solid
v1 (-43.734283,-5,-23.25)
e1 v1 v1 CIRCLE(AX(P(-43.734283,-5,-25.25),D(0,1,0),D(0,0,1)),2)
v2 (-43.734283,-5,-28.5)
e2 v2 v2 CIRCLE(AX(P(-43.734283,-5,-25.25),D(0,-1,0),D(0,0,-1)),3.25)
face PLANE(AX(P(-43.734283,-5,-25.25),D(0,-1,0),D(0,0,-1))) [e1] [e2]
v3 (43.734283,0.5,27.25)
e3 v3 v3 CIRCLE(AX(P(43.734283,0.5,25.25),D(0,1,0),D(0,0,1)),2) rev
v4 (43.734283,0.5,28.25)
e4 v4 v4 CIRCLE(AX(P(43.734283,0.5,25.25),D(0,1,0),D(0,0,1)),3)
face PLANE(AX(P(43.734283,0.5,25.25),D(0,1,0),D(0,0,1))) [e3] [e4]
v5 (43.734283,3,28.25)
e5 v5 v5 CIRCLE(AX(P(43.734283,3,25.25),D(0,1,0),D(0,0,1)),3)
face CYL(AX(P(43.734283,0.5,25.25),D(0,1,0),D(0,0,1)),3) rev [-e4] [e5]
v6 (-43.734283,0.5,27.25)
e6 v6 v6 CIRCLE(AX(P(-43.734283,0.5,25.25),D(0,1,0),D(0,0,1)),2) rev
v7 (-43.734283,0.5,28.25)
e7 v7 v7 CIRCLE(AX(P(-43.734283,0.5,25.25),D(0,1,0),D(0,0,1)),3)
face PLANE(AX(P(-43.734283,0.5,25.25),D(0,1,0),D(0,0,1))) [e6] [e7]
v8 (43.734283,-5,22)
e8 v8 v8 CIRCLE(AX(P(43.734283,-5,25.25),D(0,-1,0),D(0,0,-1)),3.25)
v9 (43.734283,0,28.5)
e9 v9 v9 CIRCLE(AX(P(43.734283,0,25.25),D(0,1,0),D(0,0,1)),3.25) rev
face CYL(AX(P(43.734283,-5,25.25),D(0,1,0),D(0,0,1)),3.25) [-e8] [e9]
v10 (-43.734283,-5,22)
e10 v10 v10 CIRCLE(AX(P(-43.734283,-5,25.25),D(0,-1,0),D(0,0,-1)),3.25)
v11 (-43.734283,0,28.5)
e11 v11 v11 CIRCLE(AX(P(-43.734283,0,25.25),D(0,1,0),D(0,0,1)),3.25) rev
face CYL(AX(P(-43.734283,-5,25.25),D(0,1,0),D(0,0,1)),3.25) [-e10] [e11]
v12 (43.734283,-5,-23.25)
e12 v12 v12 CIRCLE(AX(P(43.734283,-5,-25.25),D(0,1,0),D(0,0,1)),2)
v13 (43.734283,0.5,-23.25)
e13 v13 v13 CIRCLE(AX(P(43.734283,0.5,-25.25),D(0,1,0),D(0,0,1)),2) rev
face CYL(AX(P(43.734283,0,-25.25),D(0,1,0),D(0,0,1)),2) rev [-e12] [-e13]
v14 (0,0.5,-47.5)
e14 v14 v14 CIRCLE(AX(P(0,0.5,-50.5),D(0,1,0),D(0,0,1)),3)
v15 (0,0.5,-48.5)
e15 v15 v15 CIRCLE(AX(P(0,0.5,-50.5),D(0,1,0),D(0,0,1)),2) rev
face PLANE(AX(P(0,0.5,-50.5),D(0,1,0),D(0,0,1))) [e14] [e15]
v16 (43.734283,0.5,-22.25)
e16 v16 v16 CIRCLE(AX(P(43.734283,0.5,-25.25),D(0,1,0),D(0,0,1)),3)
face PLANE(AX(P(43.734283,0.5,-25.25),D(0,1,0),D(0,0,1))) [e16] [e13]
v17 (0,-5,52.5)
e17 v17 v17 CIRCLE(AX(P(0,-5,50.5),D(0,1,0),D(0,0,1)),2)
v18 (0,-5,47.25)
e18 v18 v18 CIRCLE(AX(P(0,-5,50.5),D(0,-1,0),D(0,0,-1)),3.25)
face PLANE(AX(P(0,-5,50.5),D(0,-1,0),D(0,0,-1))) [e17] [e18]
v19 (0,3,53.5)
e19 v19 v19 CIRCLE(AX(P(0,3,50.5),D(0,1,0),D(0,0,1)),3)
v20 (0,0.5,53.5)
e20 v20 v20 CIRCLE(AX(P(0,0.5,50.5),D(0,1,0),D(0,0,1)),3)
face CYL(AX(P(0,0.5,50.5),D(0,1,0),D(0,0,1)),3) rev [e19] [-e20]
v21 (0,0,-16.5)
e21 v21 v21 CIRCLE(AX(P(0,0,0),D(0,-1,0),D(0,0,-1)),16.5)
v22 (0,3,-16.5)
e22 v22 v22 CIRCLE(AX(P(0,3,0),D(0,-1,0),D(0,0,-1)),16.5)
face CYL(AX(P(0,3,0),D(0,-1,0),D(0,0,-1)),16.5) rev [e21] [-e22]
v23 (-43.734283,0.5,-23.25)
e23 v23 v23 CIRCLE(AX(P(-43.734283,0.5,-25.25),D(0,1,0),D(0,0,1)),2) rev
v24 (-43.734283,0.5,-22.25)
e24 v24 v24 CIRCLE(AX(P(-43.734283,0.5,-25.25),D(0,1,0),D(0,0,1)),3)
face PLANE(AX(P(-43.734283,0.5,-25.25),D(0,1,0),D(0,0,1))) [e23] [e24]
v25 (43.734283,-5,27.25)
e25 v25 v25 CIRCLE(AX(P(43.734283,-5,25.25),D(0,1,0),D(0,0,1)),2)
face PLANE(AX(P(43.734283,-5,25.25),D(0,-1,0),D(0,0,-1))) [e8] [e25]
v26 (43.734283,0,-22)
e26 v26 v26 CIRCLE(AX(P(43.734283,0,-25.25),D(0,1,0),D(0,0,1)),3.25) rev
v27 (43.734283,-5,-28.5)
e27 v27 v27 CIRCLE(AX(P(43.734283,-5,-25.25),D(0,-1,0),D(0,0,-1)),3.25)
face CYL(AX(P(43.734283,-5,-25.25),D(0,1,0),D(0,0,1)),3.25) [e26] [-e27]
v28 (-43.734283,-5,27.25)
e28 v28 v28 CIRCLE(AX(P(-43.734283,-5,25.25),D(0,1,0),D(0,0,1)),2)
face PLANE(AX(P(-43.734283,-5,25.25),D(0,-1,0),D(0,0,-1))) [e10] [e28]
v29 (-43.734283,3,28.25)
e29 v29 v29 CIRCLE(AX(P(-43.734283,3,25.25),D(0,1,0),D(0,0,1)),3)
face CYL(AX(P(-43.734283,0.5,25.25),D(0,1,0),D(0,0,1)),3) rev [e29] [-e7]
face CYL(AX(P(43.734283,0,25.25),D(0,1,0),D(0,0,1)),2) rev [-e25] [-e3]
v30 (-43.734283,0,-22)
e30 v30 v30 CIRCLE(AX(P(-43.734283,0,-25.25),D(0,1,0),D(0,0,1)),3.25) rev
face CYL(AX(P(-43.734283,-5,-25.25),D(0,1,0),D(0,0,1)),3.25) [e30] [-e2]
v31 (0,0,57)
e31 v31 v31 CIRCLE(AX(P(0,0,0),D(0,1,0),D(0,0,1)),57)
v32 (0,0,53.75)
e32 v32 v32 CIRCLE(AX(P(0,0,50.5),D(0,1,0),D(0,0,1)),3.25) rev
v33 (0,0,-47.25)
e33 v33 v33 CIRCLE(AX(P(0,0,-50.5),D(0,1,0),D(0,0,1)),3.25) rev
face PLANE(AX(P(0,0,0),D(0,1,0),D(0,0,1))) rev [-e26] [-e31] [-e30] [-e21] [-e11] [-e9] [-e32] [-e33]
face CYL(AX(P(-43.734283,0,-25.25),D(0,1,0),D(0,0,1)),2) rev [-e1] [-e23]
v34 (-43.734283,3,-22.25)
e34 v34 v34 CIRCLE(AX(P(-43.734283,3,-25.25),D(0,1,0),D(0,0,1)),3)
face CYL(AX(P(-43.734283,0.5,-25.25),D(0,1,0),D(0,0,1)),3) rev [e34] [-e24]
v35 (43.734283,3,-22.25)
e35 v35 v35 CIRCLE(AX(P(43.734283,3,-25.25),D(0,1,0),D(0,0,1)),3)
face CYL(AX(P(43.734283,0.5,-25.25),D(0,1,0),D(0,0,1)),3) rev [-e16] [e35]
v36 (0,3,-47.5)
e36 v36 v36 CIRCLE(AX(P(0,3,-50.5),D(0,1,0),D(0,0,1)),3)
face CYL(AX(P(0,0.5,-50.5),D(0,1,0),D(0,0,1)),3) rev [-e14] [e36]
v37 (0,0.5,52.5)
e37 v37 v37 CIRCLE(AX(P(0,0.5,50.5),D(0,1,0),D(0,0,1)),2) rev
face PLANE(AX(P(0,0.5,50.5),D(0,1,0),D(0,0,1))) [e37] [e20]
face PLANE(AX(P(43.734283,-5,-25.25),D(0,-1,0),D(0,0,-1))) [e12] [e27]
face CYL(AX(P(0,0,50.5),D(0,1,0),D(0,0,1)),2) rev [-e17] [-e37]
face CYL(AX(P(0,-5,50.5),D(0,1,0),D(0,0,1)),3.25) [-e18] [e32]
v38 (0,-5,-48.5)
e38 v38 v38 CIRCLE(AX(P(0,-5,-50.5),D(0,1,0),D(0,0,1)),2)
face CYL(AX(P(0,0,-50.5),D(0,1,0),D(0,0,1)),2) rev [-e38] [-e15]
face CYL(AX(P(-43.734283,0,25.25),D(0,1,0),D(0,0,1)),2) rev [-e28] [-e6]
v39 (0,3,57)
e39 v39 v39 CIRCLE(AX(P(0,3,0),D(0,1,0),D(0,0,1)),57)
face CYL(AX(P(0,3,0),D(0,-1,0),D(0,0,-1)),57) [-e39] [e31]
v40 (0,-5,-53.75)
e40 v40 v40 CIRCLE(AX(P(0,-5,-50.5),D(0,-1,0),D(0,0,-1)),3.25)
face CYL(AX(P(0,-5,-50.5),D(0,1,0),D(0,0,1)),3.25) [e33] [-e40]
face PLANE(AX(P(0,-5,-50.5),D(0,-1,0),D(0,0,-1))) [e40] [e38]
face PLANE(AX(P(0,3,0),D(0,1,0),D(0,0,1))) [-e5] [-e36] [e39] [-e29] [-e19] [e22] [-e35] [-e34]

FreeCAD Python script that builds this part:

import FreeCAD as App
import Part
import Sketcher

V = App.Vector

doc = App.newDocument("Part")
params = doc.addObject("Spreadsheet::Sheet", "Params")
for row, (alias, value) in enumerate([
    ("sketch1_diameter", "114 mm"),
    ("pad1_length", "3 mm"),
    ("sketch2_diameter", "4 mm"),
    ("sketch3_diameter", "6.5 mm"),
    ("pad2_length", "5 mm"),
    ("sketch4_diameter", "33 mm"),
    ("sketch5_diameter", "4 mm"),
    ("sketch6_diameter", "6 mm"),
    ("pocket4_length", "2.5 mm"),
], start=1):
    params.set(f"A{row}", alias)
    params.set(f"B{row}", "=" + value)
    params.setAlias(f"B{row}", alias)

body = doc.addObject("PartDesign::Body", "Body")

# Sketch on XZ plane
sketch1 = body.newObject("Sketcher::SketchObject", "Sketch")
sketch1.AttachmentSupport = (doc.getObject("XZ_Plane"), [""])
sketch1.MapMode = "FlatFace"
sketch1.addGeometry(Part.Circle(V(0, 0, 0), V(0, 0, 1), 57), False)
sketch1.addConstraint([
    Sketcher.Constraint("Coincident", 0, 3, -1, 1),
    Sketcher.Constraint("Diameter", 0, 114.0),
])
sketch1.setExpression("Constraints[1]", "Params.sketch1_diameter")
pad1 = body.newObject("PartDesign::Pad", "Pad")
pad1.Profile = sketch1
pad1.setExpression("Length", "Params.pad1_length")
pad1.Reversed = True

# Sketch on XZ plane
sketch2 = body.newObject("Sketcher::SketchObject", "Sketch001")
sketch2.AttachmentSupport = (doc.getObject("XZ_Plane"), [""])
sketch2.MapMode = "FlatFace"
sketch2.AttachmentOffset = App.Placement(V(0, 0, -3), App.Rotation())
sketch2.addGeometry(Part.Circle(V(0, -50.5, 0), V(0, 0, 1), 2), False)
sketch2.addConstraint([
    Sketcher.Constraint("PointOnObject", 0, 3, -2),
    Sketcher.Constraint("Diameter", 0, 4.0),
    Sketcher.Constraint("DistanceY", 0, 3, -1, 1, 50.5),
])
sketch2.setExpression("Constraints[1]", "Params.sketch2_diameter")
pocket1 = body.newObject("PartDesign::Pocket", "Pocket")
pocket1.Profile = sketch2
pocket1.Type = "ThroughAll"
pocket1.Reversed = True
doc.recompute()

polarpattern = body.newObject("PartDesign::PolarPattern", "PolarPattern")
polarpattern.Originals = [pocket1]
polarpattern.Axis = (doc.getObject("Y_Axis"), [""])
polarpattern.Angle = 360
polarpattern.Occurrences = 6
body.Tip = polarpattern

# Sketch on XZ plane
sketch3 = body.newObject("Sketcher::SketchObject", "Sketch002")
sketch3.AttachmentSupport = (doc.getObject("XZ_Plane"), [""])
sketch3.MapMode = "FlatFace"
sketch3.addGeometry([
    Part.Circle(V(0, 50.5, 0), V(0, 0, 1), 3.2),  # 0
    Part.Circle(V(43.7, 25.2, 0), V(0, 0, 1), 3.2),  # 1
    Part.Circle(V(43.7, -25.2, 0), V(0, 0, 1), 3.2),  # 2
    Part.Circle(V(0, -50.5, 0), V(0, 0, 1), 3.2),  # 3
    Part.Circle(V(-43.7, -25.2, 0), V(0, 0, 1), 3.2),  # 4
    Part.Circle(V(-43.7, 25.2, 0), V(0, 0, 1), 3.2),  # 5
], False)
sketch3.addConstraint([
    Sketcher.Constraint("Equal", 0, 1),
    Sketcher.Constraint("Equal", 1, 2),
    Sketcher.Constraint("Equal", 2, 3),
    Sketcher.Constraint("Equal", 3, 4),
    Sketcher.Constraint("Equal", 4, 5),
    Sketcher.Constraint("Symmetric", 0, 3, 3, 3, -1, 1),
    Sketcher.Constraint("Symmetric", 1, 3, 4, 3, -1, 1),
    Sketcher.Constraint("Symmetric", 2, 3, 5, 3, -1, 1),
    Sketcher.Constraint("Symmetric", 2, 3, 4, 3, -2),
    Sketcher.Constraint("PointOnObject", 0, 3, -2),
    Sketcher.Constraint("Diameter", 0, 6.5),
    Sketcher.Constraint("DistanceY", 3, 3, 0, 3, 101.0),
    Sketcher.Constraint("DistanceY", 2, 3, 1, 3, 50.5),
    Sketcher.Constraint("DistanceX", -1, 1, 1, 3, 43.734283),
])
sketch3.setExpression("Constraints[10]", "Params.sketch3_diameter")
pad2 = body.newObject("PartDesign::Pad", "Pad001")
pad2.Profile = sketch3
pad2.setExpression("Length", "Params.pad2_length")

# Sketch on XZ plane
sketch4 = body.newObject("Sketcher::SketchObject", "Sketch003")
sketch4.AttachmentSupport = (doc.getObject("XZ_Plane"), [""])
sketch4.MapMode = "FlatFace"
sketch4.addGeometry(Part.Circle(V(0, 0, 0), V(0, 0, 1), 16), False)
sketch4.addConstraint([
    Sketcher.Constraint("Coincident", 0, 3, -1, 1),
    Sketcher.Constraint("Diameter", 0, 33.0),
])
sketch4.setExpression("Constraints[1]", "Params.sketch4_diameter")
pocket2 = body.newObject("PartDesign::Pocket", "Pocket001")
pocket2.Profile = sketch4
pocket2.Type = "ThroughAll"

# Sketch on XZ plane
sketch5 = body.newObject("Sketcher::SketchObject", "Sketch004")
sketch5.AttachmentSupport = (doc.getObject("XZ_Plane"), [""])
sketch5.MapMode = "FlatFace"
sketch5.AttachmentOffset = App.Placement(V(0, 0, -3), App.Rotation())
sketch5.addGeometry([
    Part.Circle(V(-43.7, 25.2, 0), V(0, 0, 1), 2),  # 0
    Part.Circle(V(0, 50.5, 0), V(0, 0, 1), 2),  # 1
    Part.Circle(V(43.7, 25.2, 0), V(0, 0, 1), 2),  # 2
    Part.Circle(V(43.7, -25.2, 0), V(0, 0, 1), 2),  # 3
    Part.Circle(V(0, -50.5, 0), V(0, 0, 1), 2),  # 4
    Part.Circle(V(-43.7, -25.2, 0), V(0, 0, 1), 2),  # 5
], False)
sketch5.addConstraint([
    Sketcher.Constraint("Equal", 0, 1),
    Sketcher.Constraint("Equal", 1, 2),
    Sketcher.Constraint("Equal", 2, 3),
    Sketcher.Constraint("Equal", 3, 4),
    Sketcher.Constraint("Equal", 4, 5),
    Sketcher.Constraint("Symmetric", 0, 3, 3, 3, -1, 1),
    Sketcher.Constraint("Symmetric", 1, 3, 4, 3, -1, 1),
    Sketcher.Constraint("Symmetric", 2, 3, 5, 3, -1, 1),
    Sketcher.Constraint("Symmetric", 0, 3, 2, 3, -2),
    Sketcher.Constraint("PointOnObject", 1, 3, -2),
    Sketcher.Constraint("Diameter", 0, 4.0),
    Sketcher.Constraint("DistanceY", 4, 3, 1, 3, 101.0),
    Sketcher.Constraint("DistanceY", 3, 3, 2, 3, 50.5),
    Sketcher.Constraint("DistanceX", 0, 3, -1, 1, 43.734283),
])
sketch5.setExpression("Constraints[10]", "Params.sketch5_diameter")
pocket3 = body.newObject("PartDesign::Pocket", "Pocket002")
pocket3.Profile = sketch5
pocket3.Type = "ThroughAll"
pocket3.Reversed = True

# Sketch on XZ plane
sketch6 = body.newObject("Sketcher::SketchObject", "Sketch005")
sketch6.AttachmentSupport = (doc.getObject("XZ_Plane"), [""])
sketch6.MapMode = "FlatFace"
sketch6.AttachmentOffset = App.Placement(V(0, 0, -3), App.Rotation())
sketch6.addGeometry([
    Part.Circle(V(-43.7, -25.2, 0), V(0, 0, 1), 3),  # 0
    Part.Circle(V(0, -50.5, 0), V(0, 0, 1), 3),  # 1
    Part.Circle(V(43.7, -25.2, 0), V(0, 0, 1), 3),  # 2
    Part.Circle(V(43.7, 25.2, 0), V(0, 0, 1), 3),  # 3
    Part.Circle(V(0, 50.5, 0), V(0, 0, 1), 3),  # 4
    Part.Circle(V(-43.7, 25.2, 0), V(0, 0, 1), 3),  # 5
], False)
sketch6.addConstraint([
    Sketcher.Constraint("Equal", 0, 1),
    Sketcher.Constraint("Equal", 1, 2),
    Sketcher.Constraint("Equal", 2, 3),
    Sketcher.Constraint("Equal", 3, 4),
    Sketcher.Constraint("Equal", 4, 5),
    Sketcher.Constraint("Symmetric", 0, 3, 3, 3, -1, 1),
    Sketcher.Constraint("Symmetric", 1, 3, 4, 3, -1, 1),
    Sketcher.Constraint("Symmetric", 2, 3, 5, 3, -1, 1),
    Sketcher.Constraint("Symmetric", 0, 3, 2, 3, -2),
    Sketcher.Constraint("PointOnObject", 1, 3, -2),
    Sketcher.Constraint("Diameter", 0, 6.0),
    Sketcher.Constraint("DistanceY", 1, 3, 4, 3, 101.0),
    Sketcher.Constraint("DistanceY", 2, 3, 3, 3, 50.5),
    Sketcher.Constraint("DistanceX", 0, 3, -1, 1, 43.734283),
])
sketch6.setExpression("Constraints[10]", "Params.sketch6_diameter")
pocket4 = body.newObject("PartDesign::Pocket", "Pocket003")
pocket4.Profile = sketch6
pocket4.setExpression("Length", "Params.pocket4_length")
pocket4.Reversed = True

doc.recompute()
